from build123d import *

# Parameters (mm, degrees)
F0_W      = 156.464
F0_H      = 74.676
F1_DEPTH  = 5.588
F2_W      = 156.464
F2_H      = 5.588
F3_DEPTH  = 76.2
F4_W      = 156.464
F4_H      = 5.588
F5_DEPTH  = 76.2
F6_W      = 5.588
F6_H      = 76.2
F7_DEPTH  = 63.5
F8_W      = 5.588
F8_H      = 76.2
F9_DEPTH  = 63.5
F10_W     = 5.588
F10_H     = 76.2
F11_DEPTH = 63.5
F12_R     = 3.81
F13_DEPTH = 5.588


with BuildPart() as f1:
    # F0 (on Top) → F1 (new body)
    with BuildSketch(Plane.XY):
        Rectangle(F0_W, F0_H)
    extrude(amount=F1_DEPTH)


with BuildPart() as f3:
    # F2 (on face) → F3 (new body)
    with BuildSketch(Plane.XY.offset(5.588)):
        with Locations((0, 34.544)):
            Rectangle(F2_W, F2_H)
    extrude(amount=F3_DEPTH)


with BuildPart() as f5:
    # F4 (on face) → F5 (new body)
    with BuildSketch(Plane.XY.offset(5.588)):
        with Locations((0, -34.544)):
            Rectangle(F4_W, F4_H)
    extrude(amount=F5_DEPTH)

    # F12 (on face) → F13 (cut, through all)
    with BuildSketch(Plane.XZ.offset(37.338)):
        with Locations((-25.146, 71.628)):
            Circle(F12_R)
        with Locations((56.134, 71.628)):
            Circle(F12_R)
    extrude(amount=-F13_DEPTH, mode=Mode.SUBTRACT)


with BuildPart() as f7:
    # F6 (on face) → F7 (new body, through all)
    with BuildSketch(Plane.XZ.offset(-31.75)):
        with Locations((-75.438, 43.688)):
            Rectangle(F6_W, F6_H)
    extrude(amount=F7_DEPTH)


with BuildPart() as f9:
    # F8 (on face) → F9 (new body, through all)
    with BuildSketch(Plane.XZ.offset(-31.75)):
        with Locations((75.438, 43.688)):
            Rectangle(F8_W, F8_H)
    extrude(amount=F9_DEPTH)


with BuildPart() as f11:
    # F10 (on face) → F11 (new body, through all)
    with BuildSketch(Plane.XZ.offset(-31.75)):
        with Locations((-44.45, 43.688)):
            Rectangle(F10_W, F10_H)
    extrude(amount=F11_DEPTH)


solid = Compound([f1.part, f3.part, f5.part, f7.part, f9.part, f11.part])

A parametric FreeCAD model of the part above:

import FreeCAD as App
import Part
import Sketcher
from FreeCAD import Vector
Q = App.Units.Quantity

doc = App.newDocument("Part")
params = doc.addObject("Spreadsheet::Sheet", "Params")
for row, (alias, value) in enumerate([
    ("sketch1_width", "6.16 in"),
    ("sketch1_height", "2.94 in"),
    ("pad1_length", "0.22 in"),
    ("sketch2_width", "6.16 in"),
    ("sketch2_height", "0.22 in"),
    ("pad2_length", "3 in"),
    ("sketch3_width", "6.16 in"),
    ("sketch3_height", "0.22 in"),
    ("pad3_length", "3 in"),
    ("sketch4_diameter", "0.3 in"),
    ("sketch5_height", "3 in"),
    ("sketch5_width", "0.22 in"),
    ("pad4_length", "2.5 in"),
    ("sketch6_height", "3 in"),
    ("sketch6_width", "0.22 in"),
    ("pad5_length", "2.5 in"),
    ("sketch7_height", "3 in"),
    ("sketch7_width", "0.22 in"),
    ("pad6_length", "2.5 in"),
], start=1):
    params.set(f"A{row}", alias)
    params.set(f"B{row}", "=" + value)
    params.setAlias(f"B{row}", alias)

body = doc.addObject("PartDesign::Body", "Body")

sketch1 = body.newObject("Sketcher::SketchObject", "Sketch")
sketch1.AttachmentSupport = (doc.getObject("XY_Plane"), [""])
sketch1.MapMode = "FlatFace"
sketch1.addGeometry(Part.LineSegment(Vector(-78.232, 37.338, 0), Vector(-78.232, -37.338, 0)), False)
sketch1.addGeometry(Part.LineSegment(Vector(-78.232, -37.338, 0), Vector(78.232, -37.338, 0)), False)
sketch1.addGeometry(Part.LineSegment(Vector(78.232, -37.338, 0), Vector(78.232, 37.338, 0)), False)
sketch1.addGeometry(Part.LineSegment(Vector(78.232, 37.338, 0), Vector(-78.232, 37.338, 0)), False)
sketch1.addConstraint(Sketcher.Constraint("Coincident", 0, 2, 1, 1))
sketch1.addConstraint(Sketcher.Constraint("Coincident", 1, 2, 2, 1))
sketch1.addConstraint(Sketcher.Constraint("Coincident", 2, 2, 3, 1))
sketch1.addConstraint(Sketcher.Constraint("Coincident", 3, 2, 0, 1))
sketch1.addConstraint(Sketcher.Constraint("Vertical", 0))
sketch1.addConstraint(Sketcher.Constraint("Horizontal", 1))
sketch1.addConstraint(Sketcher.Constraint("Vertical", 2))
sketch1.addConstraint(Sketcher.Constraint("Horizontal", 3))
sketch1.addConstraint(Sketcher.Constraint("Symmetric", 0, 2, 2, 2, -1, 1))
sketch1.addConstraint(Sketcher.Constraint("DistanceX", 1, 1, 1, 2, Q("6.16 in")))
sketch1.addConstraint(Sketcher.Constraint("DistanceY", 0, 2, 0, 1, Q("2.94 in")))
sketch1.setExpression("Constraints[9]", "Params.sketch1_width")
sketch1.setExpression("Constraints[10]", "Params.sketch1_height")
pad1 = body.newObject("PartDesign::Pad", "Pad")
pad1.Profile = sketch1
pad1.setExpression("Length", "Params.pad1_length")
body2 = doc.addObject("PartDesign::Body", "Body001")

sketch2 = body2.newObject("Sketcher::SketchObject", "Sketch001")
sketch2.AttachmentSupport = (doc.getObject("XY_Plane001"), [""])
sketch2.MapMode = "FlatFace"
sketch2.AttachmentOffset = App.Placement(Vector(0, 0, 0.22 * 25.4), App.Rotation())
sketch2.addGeometry(Part.LineSegment(Vector(-78.232, 37.338, 0), Vector(-78.232, 31.75, 0)), False)
sketch2.addGeometry(Part.LineSegment(Vector(-78.232, 31.75, 0), Vector(78.232, 31.75, 0)), False)
sketch2.addGeometry(Part.LineSegment(Vector(78.232, 31.75, 0), Vector(78.232, 37.338, 0)), False)
sketch2.addGeometry(Part.LineSegment(Vector(78.232, 37.338, 0), Vector(-78.232, 37.338, 0)), False)
sketch2.addConstraint(Sketcher.Constraint("Coincident", 0, 2, 1, 1))
sketch2.addConstraint(Sketcher.Constraint("Coincident", 1, 2, 2, 1))
sketch2.addConstraint(Sketcher.Constraint("Coincident", 2, 2, 3, 1))
sketch2.addConstraint(Sketcher.Constraint("Coincident", 3, 2, 0, 1))
sketch2.addConstraint(Sketcher.Constraint("Vertical", 0))
sketch2.addConstraint(Sketcher.Constraint("Horizontal", 1))
sketch2.addConstraint(Sketcher.Constraint("Vertical", 2))
sketch2.addConstraint(Sketcher.Constraint("Horizontal", 3))
sketch2.addConstraint(Sketcher.Constraint("DistanceX", 1, 1, 1, 2, Q("6.16 in")))
sketch2.addConstraint(Sketcher.Constraint("DistanceY", 0, 2, 0, 1, Q("0.22 in")))
sketch2.addConstraint(Sketcher.Constraint("DistanceX", 0, 2, -1, 1, Q("3.08 in")))
sketch2.addConstraint(Sketcher.Constraint("DistanceY", -1, 1, 0, 2, Q("1.25 in")))
sketch2.setExpression("Constraints[8]", "Params.sketch2_width")
sketch2.setExpression("Constraints[9]", "Params.sketch2_height")
pad2 = body2.newObject("PartDesign::Pad", "Pad001")
pad2.Profile = sketch2
pad2.setExpression("Length", "Params.pad2_length")
body3 = doc.addObject("PartDesign::Body", "Body002")

sketch3 = body3.newObject("Sketcher::SketchObject", "Sketch002")
sketch3.AttachmentSupport = (doc.getObject("XY_Plane002"), [""])
sketch3.MapMode = "FlatFace"
sketch3.AttachmentOffset = App.Placement(Vector(0, 0, 0.22 * 25.4), App.Rotation())
sketch3.addGeometry(Part.LineSegment(Vector(-78.232, -31.75, 0), Vector(-78.232, -37.338, 0)), False)
sketch3.addGeometry(Part.LineSegment(Vector(-78.232, -37.338, 0), Vector(78.232, -37.338, 0)), False)
sketch3.addGeometry(Part.LineSegment(Vector(78.232, -37.338, 0), Vector(78.232, -31.75, 0)), False)
sketch3.addGeometry(Part.LineSegment(Vector(78.232, -31.75, 0), Vector(-78.232, -31.75, 0)), False)
sketch3.addConstraint(Sketcher.Constraint("Coincident", 0, 2, 1, 1))
sketch3.addConstraint(Sketcher.Constraint("Coincident", 1, 2, 2, 1))
sketch3.addConstraint(Sketcher.Constraint("Coincident", 2, 2, 3, 1))
sketch3.addConstraint(Sketcher.Constraint("Coincident", 3, 2, 0, 1))
sketch3.addConstraint(Sketcher.Constraint("Vertical", 0))
sketch3.addConstraint(Sketcher.Constraint("Horizontal", 1))
sketch3.addConstraint(Sketcher.Constraint("Vertical", 2))
sketch3.addConstraint(Sketcher.Constraint("Horizontal", 3))
sketch3.addConstraint(Sketcher.Constraint("DistanceX", 1, 1, 1, 2, Q("6.16 in")))
sketch3.addConstraint(Sketcher.Constraint("DistanceY", 0, 2, 0, 1, Q("0.22 in")))
sketch3.addConstraint(Sketcher.Constraint("DistanceX", 0, 2, -1, 1, Q("3.08 in")))
sketch3.addConstraint(Sketcher.Constraint("DistanceY", 0, 2, -1, 1, Q("1.47 in")))
sketch3.setExpression("Constraints[8]", "Params.sketch3_width")
sketch3.setExpression("Constraints[9]", "Params.sketch3_height")
pad3 = body3.newObject("PartDesign::Pad", "Pad002")
pad3.Profile = sketch3
pad3.setExpression("Length", "Params.pad3_length")

sketch4 = body3.newObject("Sketcher::SketchObject", "Sketch003")
sketch4.AttachmentSupport = (doc.getObject("XZ_Plane002"), [""])
sketch4.MapMode = "FlatFace"
sketch4.AttachmentOffset = App.Placement(Vector(0, 0, 1.47 * 25.4), App.Rotation())
sketch4.addGeometry(Part.Circle(Vector(-25.146, 71.628, 0), Vector(0, 0, 1), 3.81), False)
sketch4.addGeometry(Part.Circle(Vector(56.134, 71.628, 0), Vector(0, 0, 1), 3.81), False)
sketch4.addConstraint(Sketcher.Constraint("Equal", 0, 1))
sketch4.addConstraint(Sketcher.Constraint("Horizontal", 0, 3, 1, 3))
sketch4.addConstraint(Sketcher.Constraint("Diameter", 0, Q("0.3 in")))
sketch4.addConstraint(Sketcher.Constraint("DistanceX", 0, 3, 1, 3, Q("3.2 in")))
sketch4.addConstraint(Sketcher.Constraint("DistanceX", 0, 3, -1, 1, Q("0.99 in")))
sketch4.addConstraint(Sketcher.Constraint("DistanceY", -1, 1, 0, 3, Q("2.82 in")))
sketch4.setExpression("Constraints[2]", "Params.sketch4_diameter")
pocket1 = body3.newObject("PartDesign::Pocket", "Pocket")
pocket1.Profile = sketch4
pocket1.Type = "ThroughAll"
body4 = doc.addObject("PartDesign::Body", "Body003")

sketch5 = body4.newObject("Sketcher::SketchObject", "Sketch004")
sketch5.AttachmentSupport = (doc.getObject("XZ_Plane003"), [""])
sketch5.MapMode = "FlatFace"
sketch5.AttachmentOffset = App.Placement(Vector(0, 0, -1.25 * 25.4), App.Rotation())
sketch5.addGeometry(Part.LineSegment(Vector(-78.232, 81.788, 0), Vector(-78.232, 5.588, 0)), False)
sketch5.addGeometry(Part.LineSegment(Vector(-78.232, 5.588, 0), Vector(-72.644, 5.588, 0)), False)
sketch5.addGeometry(Part.LineSegment(Vector(-72.644, 5.588, 0), Vector(-72.644, 81.788, 0)), False)
sketch5.addGeometry(Part.LineSegment(Vector(-72.644, 81.788, 0), Vector(-78.232, 81.788, 0)), False)
sketch5.addConstraint(Sketcher.Constraint("Coincident", 0, 2, 1, 1))
sketch5.addConstraint(Sketcher.Constraint("Coincident", 1, 2, 2, 1))
sketch5.addConstraint(Sketcher.Constraint("Coincident", 2, 2, 3, 1))
sketch5.addConstraint(Sketcher.Constraint("Coincident", 3, 2, 0, 1))
sketch5.addConstraint(Sketcher.Constraint("Vertical", 0))
sketch5.addConstraint(Sketcher.Constraint("Horizontal", 1))
sketch5.addConstraint(Sketcher.Constraint("Vertical", 2))
sketch5.addConstraint(Sketcher.Constraint("Horizontal", 3))
sketch5.addConstraint(Sketcher.Constraint("DistanceY", 0, 2, 0, 1, Q("3 in")))
sketch5.addConstraint(Sketcher.Constraint("DistanceX", 1, 1, 1, 2, Q("0.22 in")))
sketch5.addConstraint(Sketcher.Constraint("DistanceX", 0, 2, -1, 1, Q("3.08 in")))
sketch5.addConstraint(Sketcher.Constraint("DistanceY", -1, 1, 0, 2, Q("0.22 in")))
sketch5.setExpression("Constraints[8]", "Params.sketch5_height")
sketch5.setExpression("Constraints[9]", "Params.sketch5_width")
pad4 = body4.newObject("PartDesign::Pad", "Pad003")
pad4.Profile = sketch5
pad4.setExpression("Length", "Params.pad4_length")
body5 = doc.addObject("PartDesign::Body", "Body004")

sketch6 = body5.newObject("Sketcher::SketchObject", "Sketch005")
sketch6.AttachmentSupport = (doc.getObject("XZ_Plane004"), [""])
sketch6.MapMode = "FlatFace"
sketch6.AttachmentOffset = App.Placement(Vector(0, 0, -1.25 * 25.4), App.Rotation())
sketch6.addGeometry(Part.LineSegment(Vector(72.644, 81.788, 0), Vector(72.644, 5.588, 0)), False)
sketch6.addGeometry(Part.LineSegment(Vector(72.644, 5.588, 0), Vector(78.232, 5.588, 0)), False)
sketch6.addGeometry(Part.LineSegment(Vector(78.232, 5.588, 0), Vector(78.232, 81.788, 0)), False)
sketch6.addGeometry(Part.LineSegment(Vector(78.232, 81.788, 0), Vector(72.644, 81.788, 0)), False)
sketch6.addConstraint(Sketcher.Constraint("Coincident", 0, 2, 1, 1))
sketch6.addConstraint(Sketcher.Constraint("Coincident", 1, 2, 2, 1))
sketch6.addConstraint(Sketcher.Constraint("Coincident", 2, 2, 3, 1))
sketch6.addConstraint(Sketcher.Constraint("Coincident", 3, 2, 0, 1))
sketch6.addConstraint(Sketcher.Constraint("Vertical", 0))
sketch6.addConstraint(Sketcher.Constraint("Horizontal", 1))
sketch6.addConstraint(Sketcher.Constraint("Vertical", 2))
sketch6.addConstraint(Sketcher.Constraint("Horizontal", 3))
sketch6.addConstraint(Sketcher.Constraint("DistanceY", 0, 2, 0, 1, Q("3 in")))
sketch6.addConstraint(Sketcher.Constraint("DistanceX", 1, 1, 1, 2, Q("0.22 in")))
sketch6.addConstraint(Sketcher.Constraint("DistanceX", -1, 1, 0, 2, Q("2.86 in")))
sketch6.addConstraint(Sketcher.Constraint("DistanceY", -1, 1, 0, 2, Q("0.22 in")))
sketch6.setExpression("Constraints[8]", "Params.sketch6_height")
sketch6.setExpression("Constraints[9]", "Params.sketch6_width")
pad5 = body5.newObject("PartDesign::Pad", "Pad004")
pad5.Profile = sketch6
pad5.setExpression("Length", "Params.pad5_length")
body6 = doc.addObject("PartDesign::Body", "Body005")

sketch7 = body6.newObject("Sketcher::SketchObject", "Sketch006")
sketch7.AttachmentSupport = (doc.getObject("XZ_Plane005"), [""])
sketch7.MapMode = "FlatFace"
sketch7.AttachmentOffset = App.Placement(Vector(0, 0, -1.25 * 25.4), App.Rotation())
sketch7.addGeometry(Part.LineSegment(Vector(-47.244, 81.788, 0), Vector(-47.244, 5.588, 0)), False)
sketch7.addGeometry(Part.LineSegment(Vector(-47.244, 5.588, 0), Vector(-41.656, 5.588, 0)), False)
sketch7.addGeometry(Part.LineSegment(Vector(-41.656, 5.588, 0), Vector(-41.656, 81.788, 0)), False)
sketch7.addGeometry(Part.LineSegment(Vector(-41.656, 81.788, 0), Vector(-47.244, 81.788, 0)), False)
sketch7.addConstraint(Sketcher.Constraint("Coincident", 0, 2, 1, 1))
sketch7.addConstraint(Sketcher.Constraint("Coincident", 1, 2, 2, 1))
sketch7.addConstraint(Sketcher.Constraint("Coincident", 2, 2, 3, 1))
sketch7.addConstraint(Sketcher.Constraint("Coincident", 3, 2, 0, 1))
sketch7.addConstraint(Sketcher.Constraint("Vertical", 0))
sketch7.addConstraint(Sketcher.Constraint("Horizontal", 1))
sketch7.addConstraint(Sketcher.Constraint("Vertical", 2))
sketch7.addConstraint(Sketcher.Constraint("Horizontal", 3))
sketch7.addConstraint(Sketcher.Constraint("DistanceY", 0, 2, 0, 1, Q("3 in")))
sketch7.addConstraint(Sketcher.Constraint("DistanceX", 1, 1, 1, 2, Q("0.22 in")))
sketch7.addConstraint(Sketcher.Constraint("DistanceX", 0, 2, -1, 1, Q("1.86 in")))
sketch7.addConstraint(Sketcher.Constraint("DistanceY", -1, 1, 0, 2, Q("0.22 in")))
sketch7.setExpression("Constraints[8]", "Params.sketch7_height")
sketch7.setExpression("Constraints[9]", "Params.sketch7_width")
pad6 = body6.newObject("PartDesign::Pad", "Pad005")
pad6.Profile = sketch7
pad6.setExpression("Length", "Params.pad6_length")

doc.recompute()
